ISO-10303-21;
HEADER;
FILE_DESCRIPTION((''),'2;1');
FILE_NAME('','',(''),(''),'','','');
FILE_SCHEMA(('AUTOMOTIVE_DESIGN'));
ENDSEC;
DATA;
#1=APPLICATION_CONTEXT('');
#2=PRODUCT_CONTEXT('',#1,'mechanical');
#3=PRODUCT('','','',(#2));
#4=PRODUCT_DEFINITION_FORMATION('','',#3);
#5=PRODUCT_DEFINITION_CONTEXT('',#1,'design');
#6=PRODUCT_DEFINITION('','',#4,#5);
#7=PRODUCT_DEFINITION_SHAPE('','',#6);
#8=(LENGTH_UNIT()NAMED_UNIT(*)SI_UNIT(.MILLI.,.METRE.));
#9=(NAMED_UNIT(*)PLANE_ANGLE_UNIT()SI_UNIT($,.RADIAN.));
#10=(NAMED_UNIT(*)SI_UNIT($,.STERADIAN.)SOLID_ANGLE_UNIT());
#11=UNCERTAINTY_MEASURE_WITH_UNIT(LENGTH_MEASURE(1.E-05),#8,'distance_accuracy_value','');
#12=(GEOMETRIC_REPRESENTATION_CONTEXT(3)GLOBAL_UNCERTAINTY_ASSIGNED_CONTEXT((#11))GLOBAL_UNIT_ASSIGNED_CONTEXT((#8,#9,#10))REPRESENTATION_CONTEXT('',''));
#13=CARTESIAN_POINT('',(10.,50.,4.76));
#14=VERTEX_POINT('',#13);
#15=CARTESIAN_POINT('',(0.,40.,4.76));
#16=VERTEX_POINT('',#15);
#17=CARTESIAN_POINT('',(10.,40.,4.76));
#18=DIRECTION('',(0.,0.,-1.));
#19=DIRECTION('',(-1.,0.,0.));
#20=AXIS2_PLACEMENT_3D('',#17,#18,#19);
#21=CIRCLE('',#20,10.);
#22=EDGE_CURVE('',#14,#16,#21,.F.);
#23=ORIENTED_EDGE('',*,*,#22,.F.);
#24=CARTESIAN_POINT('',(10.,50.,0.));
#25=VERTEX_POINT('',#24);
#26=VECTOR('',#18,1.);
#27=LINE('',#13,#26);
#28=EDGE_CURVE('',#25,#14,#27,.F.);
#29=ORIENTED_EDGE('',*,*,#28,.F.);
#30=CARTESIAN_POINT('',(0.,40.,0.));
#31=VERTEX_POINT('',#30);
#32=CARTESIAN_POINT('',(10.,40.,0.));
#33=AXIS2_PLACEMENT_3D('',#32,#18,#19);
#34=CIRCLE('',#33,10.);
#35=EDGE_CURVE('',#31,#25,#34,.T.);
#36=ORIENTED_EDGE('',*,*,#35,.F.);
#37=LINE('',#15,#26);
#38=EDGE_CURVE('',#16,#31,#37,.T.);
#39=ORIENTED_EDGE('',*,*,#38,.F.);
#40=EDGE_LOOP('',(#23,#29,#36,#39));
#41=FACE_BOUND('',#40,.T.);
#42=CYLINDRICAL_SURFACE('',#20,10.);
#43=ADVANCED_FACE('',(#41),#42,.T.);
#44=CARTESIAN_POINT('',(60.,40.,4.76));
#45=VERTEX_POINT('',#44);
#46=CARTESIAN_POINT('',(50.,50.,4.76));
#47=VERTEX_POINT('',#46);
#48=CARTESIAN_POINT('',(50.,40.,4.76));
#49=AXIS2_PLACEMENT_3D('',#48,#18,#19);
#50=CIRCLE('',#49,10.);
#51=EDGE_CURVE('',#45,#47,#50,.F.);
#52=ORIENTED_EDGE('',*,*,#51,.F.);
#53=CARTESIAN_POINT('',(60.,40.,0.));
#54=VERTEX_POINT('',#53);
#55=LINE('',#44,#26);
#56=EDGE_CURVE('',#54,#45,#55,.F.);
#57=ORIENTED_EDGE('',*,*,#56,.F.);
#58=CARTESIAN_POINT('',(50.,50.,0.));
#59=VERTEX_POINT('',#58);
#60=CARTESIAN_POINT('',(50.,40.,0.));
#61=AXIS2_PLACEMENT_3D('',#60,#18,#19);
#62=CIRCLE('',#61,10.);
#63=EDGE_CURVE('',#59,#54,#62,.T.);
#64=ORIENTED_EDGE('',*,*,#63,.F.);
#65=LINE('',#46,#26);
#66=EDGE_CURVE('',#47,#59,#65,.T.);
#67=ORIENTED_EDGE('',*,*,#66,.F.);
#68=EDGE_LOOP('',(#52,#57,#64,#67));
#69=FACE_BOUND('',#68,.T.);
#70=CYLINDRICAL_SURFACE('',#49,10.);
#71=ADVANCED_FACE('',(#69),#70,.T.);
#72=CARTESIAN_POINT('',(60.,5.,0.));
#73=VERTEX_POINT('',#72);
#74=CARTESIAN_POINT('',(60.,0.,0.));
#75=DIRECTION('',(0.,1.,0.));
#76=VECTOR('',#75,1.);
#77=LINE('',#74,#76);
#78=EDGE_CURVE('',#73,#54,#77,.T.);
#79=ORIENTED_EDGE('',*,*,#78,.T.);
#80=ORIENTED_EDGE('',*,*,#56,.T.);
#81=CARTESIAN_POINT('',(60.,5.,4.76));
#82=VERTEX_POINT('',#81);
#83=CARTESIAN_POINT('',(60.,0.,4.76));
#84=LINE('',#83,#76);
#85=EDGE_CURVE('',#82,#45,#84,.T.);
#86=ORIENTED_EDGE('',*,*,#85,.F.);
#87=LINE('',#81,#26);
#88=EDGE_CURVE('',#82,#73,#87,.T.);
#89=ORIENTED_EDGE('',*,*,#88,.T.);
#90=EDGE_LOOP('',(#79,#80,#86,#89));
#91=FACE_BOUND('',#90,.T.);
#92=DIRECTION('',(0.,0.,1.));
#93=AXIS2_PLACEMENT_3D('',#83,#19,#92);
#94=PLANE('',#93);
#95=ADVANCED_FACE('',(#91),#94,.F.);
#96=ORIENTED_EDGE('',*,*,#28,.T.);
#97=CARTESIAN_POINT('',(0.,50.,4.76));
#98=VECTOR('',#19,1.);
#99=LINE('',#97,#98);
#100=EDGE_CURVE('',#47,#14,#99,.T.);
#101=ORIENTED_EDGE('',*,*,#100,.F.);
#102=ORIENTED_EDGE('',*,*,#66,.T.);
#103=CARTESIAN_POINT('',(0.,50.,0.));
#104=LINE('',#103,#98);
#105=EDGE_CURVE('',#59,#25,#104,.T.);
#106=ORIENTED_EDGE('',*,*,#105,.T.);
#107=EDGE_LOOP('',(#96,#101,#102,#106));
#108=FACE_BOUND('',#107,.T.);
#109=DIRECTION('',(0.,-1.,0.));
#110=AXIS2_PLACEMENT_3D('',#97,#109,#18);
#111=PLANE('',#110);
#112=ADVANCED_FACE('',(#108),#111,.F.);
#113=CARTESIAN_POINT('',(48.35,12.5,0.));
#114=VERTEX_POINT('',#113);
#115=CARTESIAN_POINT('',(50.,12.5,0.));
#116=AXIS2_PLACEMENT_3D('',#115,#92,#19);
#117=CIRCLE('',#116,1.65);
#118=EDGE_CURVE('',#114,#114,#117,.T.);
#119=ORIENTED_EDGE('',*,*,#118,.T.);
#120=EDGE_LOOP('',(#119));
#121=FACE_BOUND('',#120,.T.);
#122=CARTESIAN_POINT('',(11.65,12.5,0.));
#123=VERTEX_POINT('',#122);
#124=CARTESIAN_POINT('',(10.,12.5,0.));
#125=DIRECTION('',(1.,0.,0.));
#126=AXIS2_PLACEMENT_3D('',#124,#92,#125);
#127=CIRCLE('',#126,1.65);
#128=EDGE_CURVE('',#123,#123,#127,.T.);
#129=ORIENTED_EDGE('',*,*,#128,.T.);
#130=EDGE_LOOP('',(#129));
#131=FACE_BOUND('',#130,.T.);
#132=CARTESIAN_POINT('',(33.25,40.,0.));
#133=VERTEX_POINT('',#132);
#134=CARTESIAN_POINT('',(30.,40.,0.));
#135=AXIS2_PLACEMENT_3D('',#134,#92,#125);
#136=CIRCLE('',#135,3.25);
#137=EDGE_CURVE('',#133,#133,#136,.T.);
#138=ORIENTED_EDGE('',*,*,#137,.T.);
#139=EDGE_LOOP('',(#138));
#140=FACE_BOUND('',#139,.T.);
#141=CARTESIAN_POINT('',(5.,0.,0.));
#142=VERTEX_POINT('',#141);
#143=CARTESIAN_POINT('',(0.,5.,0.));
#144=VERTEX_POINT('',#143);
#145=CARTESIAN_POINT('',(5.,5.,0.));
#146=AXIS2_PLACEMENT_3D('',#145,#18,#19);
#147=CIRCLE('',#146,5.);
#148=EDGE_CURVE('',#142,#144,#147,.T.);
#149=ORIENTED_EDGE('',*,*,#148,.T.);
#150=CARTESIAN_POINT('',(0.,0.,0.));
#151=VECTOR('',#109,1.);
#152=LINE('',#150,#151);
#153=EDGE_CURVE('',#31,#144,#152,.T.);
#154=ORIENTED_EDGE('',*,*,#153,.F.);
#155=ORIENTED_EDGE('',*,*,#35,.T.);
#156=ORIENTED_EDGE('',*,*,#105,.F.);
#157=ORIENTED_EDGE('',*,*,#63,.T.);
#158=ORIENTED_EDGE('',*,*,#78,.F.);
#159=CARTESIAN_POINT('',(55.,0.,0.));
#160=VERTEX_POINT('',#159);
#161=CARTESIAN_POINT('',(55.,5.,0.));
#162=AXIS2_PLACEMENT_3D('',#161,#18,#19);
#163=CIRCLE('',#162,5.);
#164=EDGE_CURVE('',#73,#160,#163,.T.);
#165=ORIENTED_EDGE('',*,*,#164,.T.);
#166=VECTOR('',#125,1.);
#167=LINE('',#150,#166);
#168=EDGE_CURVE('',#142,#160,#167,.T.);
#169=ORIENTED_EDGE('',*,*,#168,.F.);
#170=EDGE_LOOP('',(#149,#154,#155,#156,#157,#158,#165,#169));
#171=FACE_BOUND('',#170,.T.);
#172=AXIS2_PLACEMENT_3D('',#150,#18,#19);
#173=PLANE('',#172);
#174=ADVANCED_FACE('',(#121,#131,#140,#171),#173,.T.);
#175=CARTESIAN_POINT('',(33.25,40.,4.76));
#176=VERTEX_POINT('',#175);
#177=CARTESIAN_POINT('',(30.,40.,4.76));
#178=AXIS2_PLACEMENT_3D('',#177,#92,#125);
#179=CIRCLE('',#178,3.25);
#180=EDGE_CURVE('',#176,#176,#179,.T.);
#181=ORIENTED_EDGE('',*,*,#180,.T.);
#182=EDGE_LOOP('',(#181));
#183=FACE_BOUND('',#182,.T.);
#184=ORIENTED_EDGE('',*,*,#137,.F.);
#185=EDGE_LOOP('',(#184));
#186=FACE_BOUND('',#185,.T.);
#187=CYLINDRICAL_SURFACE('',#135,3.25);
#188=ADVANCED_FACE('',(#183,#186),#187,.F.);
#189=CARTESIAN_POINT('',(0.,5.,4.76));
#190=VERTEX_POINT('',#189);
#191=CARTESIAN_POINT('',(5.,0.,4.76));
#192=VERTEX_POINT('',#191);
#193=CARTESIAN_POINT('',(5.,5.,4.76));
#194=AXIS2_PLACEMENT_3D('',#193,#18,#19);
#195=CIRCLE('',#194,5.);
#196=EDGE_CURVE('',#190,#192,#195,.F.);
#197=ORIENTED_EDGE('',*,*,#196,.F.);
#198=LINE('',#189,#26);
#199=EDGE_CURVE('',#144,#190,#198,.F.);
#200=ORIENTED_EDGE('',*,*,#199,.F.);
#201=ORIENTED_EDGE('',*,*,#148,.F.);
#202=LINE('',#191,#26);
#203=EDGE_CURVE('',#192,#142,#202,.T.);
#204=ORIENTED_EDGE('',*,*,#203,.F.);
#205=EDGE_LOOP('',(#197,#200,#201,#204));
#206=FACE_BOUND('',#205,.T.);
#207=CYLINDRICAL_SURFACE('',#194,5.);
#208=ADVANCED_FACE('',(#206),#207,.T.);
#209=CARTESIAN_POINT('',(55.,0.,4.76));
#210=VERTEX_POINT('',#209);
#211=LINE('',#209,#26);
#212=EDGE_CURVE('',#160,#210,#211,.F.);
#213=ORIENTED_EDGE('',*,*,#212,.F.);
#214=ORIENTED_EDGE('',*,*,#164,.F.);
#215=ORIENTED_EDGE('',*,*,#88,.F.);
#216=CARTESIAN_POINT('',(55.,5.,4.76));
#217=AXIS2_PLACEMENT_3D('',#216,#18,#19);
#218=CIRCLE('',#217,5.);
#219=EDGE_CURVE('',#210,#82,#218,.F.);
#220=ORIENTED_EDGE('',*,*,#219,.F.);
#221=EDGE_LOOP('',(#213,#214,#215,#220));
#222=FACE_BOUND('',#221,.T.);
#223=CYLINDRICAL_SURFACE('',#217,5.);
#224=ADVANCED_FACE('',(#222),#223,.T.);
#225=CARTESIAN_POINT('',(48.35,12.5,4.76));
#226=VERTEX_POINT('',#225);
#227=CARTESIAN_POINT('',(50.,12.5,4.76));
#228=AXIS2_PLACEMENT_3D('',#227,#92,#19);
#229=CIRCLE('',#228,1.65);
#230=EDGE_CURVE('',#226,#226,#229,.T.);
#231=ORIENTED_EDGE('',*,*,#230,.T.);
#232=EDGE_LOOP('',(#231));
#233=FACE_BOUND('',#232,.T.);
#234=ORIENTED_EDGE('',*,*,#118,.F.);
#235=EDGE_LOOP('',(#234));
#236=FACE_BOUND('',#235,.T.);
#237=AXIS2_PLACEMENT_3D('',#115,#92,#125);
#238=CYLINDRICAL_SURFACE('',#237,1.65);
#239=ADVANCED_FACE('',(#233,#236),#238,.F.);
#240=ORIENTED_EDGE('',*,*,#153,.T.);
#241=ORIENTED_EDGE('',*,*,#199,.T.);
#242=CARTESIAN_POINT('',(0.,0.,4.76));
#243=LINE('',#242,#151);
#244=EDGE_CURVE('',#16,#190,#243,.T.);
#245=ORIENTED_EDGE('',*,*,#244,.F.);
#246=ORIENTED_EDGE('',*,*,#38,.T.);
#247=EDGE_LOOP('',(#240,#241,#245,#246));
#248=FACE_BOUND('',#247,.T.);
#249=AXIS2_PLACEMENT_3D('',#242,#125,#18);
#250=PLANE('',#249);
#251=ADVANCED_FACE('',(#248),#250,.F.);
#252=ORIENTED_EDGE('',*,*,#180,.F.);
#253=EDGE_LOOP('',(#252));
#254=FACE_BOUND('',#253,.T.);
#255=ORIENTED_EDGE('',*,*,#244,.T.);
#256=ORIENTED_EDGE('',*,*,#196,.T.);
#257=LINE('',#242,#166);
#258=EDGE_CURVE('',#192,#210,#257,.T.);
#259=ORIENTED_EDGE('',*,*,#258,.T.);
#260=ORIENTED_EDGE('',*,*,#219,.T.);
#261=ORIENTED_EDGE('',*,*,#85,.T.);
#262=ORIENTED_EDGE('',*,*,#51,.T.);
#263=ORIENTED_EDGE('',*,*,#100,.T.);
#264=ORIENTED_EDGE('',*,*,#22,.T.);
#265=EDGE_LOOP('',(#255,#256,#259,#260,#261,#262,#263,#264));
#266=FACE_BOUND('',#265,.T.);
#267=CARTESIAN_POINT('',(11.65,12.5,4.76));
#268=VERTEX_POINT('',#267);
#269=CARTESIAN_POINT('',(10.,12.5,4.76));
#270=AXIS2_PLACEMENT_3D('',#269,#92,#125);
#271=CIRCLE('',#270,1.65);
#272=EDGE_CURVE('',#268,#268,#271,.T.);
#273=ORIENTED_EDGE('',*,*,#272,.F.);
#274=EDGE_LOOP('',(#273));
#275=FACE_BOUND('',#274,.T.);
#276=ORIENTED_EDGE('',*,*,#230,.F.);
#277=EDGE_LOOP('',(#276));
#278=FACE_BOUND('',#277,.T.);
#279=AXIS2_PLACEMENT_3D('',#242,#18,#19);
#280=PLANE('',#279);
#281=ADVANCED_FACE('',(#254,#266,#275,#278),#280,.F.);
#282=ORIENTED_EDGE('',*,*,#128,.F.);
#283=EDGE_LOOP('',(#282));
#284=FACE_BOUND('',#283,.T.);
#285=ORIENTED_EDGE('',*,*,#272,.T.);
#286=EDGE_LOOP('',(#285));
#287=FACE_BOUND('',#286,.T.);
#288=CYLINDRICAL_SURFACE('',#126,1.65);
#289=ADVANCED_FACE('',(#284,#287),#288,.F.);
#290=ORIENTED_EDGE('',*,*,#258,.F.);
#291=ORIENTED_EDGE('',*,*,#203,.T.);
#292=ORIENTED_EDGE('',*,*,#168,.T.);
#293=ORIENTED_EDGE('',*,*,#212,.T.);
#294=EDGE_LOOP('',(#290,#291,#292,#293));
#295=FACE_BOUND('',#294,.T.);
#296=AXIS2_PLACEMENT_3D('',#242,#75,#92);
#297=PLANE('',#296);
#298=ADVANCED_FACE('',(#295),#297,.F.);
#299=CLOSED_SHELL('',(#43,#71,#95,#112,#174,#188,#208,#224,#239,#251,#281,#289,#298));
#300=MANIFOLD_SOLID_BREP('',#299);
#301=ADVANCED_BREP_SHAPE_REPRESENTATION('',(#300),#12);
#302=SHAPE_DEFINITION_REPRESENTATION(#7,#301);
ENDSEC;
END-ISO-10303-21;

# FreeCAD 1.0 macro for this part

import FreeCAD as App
import Part
import Sketcher
Q = App.Units.Quantity


def edges_at(feature, points):
    """Names of the edges that pass closest to the given points."""
    edges = feature.Shape.Edges
    near = lambda p: min(range(len(edges)), key=lambda i: edges[i].distToShape(Part.Vertex(*p))[0])
    return sorted({f"Edge{near(p) + 1}" for p in points})


def add_polygon(sketch, points):
    """Adds a closed chain of lines whose ends are joined by coincident constraints."""
    first, n = sketch.GeometryCount, len(points)
    for a, b in zip(points, points[1:] + points[:1]):
        sketch.addGeometry(Part.LineSegment(App.Vector(*a, 0), App.Vector(*b, 0)), False)
    for i in range(n):
        sketch.addConstraint(Sketcher.Constraint("Coincident", first + i, 2, first + (i + 1) % n, 1))

doc = App.newDocument("Part")
params = doc.addObject("Spreadsheet::Sheet", "Params")
for row, (alias, value) in enumerate([
    ("sketch1_width", "60 mm"),
    ("sketch1_height", "50 mm"),
    ("pad1_length", "4.76 mm"),
    ("sketch2_diameter", "3.3 mm"),
    ("sketch2_diameter2", "6.5 mm"),
    ("fillet_radius", "10 mm"),
    ("fillet2_radius", "5 mm"),
], start=1):
    params.set(f"A{row}", alias)
    params.set(f"B{row}", "=" + value)
    params.setAlias(f"B{row}", alias)

body = doc.addObject("PartDesign::Body", "Body")

sketch1 = body.newObject("Sketcher::SketchObject", "Sketch")
sketch1.AttachmentSupport = (doc.getObject("XY_Plane"), [""])
sketch1.MapMode = "FlatFace"
add_polygon(sketch1, [(0, 50), (0, 0), (60, 0), (60, 50)])
sketch1.addConstraint(Sketcher.Constraint("Vertical", 0))
sketch1.addConstraint(Sketcher.Constraint("Horizontal", 1))
sketch1.addConstraint(Sketcher.Constraint("Vertical", 2))
sketch1.addConstraint(Sketcher.Constraint("Horizontal", 3))
sketch1.addConstraint(Sketcher.Constraint("Coincident", 0, 2, -1, 1))
sketch1.addConstraint(Sketcher.Constraint("DistanceX", 1, 1, 1, 2, Q("60 mm")))
sketch1.addConstraint(Sketcher.Constraint("DistanceY", 0, 2, 0, 1, Q("50 mm")))
sketch1.setExpression("Constraints[9]", "Params.sketch1_width")
sketch1.setExpression("Constraints[10]", "Params.sketch1_height")
pad1 = body.newObject("PartDesign::Pad", "Pad")
pad1.Profile = sketch1
pad1.setExpression("Length", "Params.pad1_length")

sketch2 = body.newObject("Sketcher::SketchObject", "Sketch001")
sketch2.AttachmentSupport = (doc.getObject("XY_Plane"), [""])
sketch2.MapMode = "FlatFace"
sketch2.AttachmentOffset = App.Placement(App.Vector(0, 0, 4.76), App.Rotation())
sketch2.addGeometry(Part.Circle(App.Vector(10, 12.5, 0), App.Vector(0, 0, 1), 1.6), False)
sketch2.addGeometry(Part.Circle(App.Vector(50, 12.5, 0), App.Vector(0, 0, 1), 1.6), False)
sketch2.addGeometry(Part.Circle(App.Vector(30, 40, 0), App.Vector(0, 0, 1), 3.2), False)
sketch2.addConstraint(Sketcher.Constraint("Equal", 0, 1))
sketch2.addConstraint(Sketcher.Constraint("Horizontal", 0, 3, 1, 3))
sketch2.addConstraint(Sketcher.Constraint("Diameter", 0, Q("3.3 mm")))
sketch2.addConstraint(Sketcher.Constraint("Diameter", 2, Q("6.5 mm")))
sketch2.addConstraint(Sketcher.Constraint("DistanceX", -1, 1, 0, 3, Q("10 mm")))
sketch2.addConstraint(Sketcher.Constraint("DistanceX", -1, 1, 1, 3, Q("50 mm")))
sketch2.addConstraint(Sketcher.Constraint("DistanceX", -1, 1, 2, 3, Q("30 mm")))
sketch2.addConstraint(Sketcher.Constraint("DistanceY", -1, 1, 2, 3, Q("40 mm")))
sketch2.addConstraint(Sketcher.Constraint("DistanceY", -1, 1, 0, 3, Q("12.5 mm")))
sketch2.setExpression("Constraints[2]", "Params.sketch2_diameter")
sketch2.setExpression("Constraints[3]", "Params.sketch2_diameter2")
pocket1 = body.newObject("PartDesign::Pocket", "Pocket")
pocket1.Profile = sketch2
pocket1.Type = "ThroughAll"
doc.recompute()

fillet = body.newObject("PartDesign::Fillet", "Fillet")
fillet.Base = (pocket1, edges_at(pocket1, [(0, 50, 2.38), (60, 50, 2.38)]))
fillet.setExpression("Radius", "Params.fillet_radius")
doc.recompute()

fillet2 = body.newObject("PartDesign::Fillet", "Fillet001")
fillet2.Base = (fillet, edges_at(fillet, [(60, 0, 2.38), (0, 0, 2.38)]))
fillet2.setExpression("Radius", "Params.fillet2_radius")

doc.recompute()
